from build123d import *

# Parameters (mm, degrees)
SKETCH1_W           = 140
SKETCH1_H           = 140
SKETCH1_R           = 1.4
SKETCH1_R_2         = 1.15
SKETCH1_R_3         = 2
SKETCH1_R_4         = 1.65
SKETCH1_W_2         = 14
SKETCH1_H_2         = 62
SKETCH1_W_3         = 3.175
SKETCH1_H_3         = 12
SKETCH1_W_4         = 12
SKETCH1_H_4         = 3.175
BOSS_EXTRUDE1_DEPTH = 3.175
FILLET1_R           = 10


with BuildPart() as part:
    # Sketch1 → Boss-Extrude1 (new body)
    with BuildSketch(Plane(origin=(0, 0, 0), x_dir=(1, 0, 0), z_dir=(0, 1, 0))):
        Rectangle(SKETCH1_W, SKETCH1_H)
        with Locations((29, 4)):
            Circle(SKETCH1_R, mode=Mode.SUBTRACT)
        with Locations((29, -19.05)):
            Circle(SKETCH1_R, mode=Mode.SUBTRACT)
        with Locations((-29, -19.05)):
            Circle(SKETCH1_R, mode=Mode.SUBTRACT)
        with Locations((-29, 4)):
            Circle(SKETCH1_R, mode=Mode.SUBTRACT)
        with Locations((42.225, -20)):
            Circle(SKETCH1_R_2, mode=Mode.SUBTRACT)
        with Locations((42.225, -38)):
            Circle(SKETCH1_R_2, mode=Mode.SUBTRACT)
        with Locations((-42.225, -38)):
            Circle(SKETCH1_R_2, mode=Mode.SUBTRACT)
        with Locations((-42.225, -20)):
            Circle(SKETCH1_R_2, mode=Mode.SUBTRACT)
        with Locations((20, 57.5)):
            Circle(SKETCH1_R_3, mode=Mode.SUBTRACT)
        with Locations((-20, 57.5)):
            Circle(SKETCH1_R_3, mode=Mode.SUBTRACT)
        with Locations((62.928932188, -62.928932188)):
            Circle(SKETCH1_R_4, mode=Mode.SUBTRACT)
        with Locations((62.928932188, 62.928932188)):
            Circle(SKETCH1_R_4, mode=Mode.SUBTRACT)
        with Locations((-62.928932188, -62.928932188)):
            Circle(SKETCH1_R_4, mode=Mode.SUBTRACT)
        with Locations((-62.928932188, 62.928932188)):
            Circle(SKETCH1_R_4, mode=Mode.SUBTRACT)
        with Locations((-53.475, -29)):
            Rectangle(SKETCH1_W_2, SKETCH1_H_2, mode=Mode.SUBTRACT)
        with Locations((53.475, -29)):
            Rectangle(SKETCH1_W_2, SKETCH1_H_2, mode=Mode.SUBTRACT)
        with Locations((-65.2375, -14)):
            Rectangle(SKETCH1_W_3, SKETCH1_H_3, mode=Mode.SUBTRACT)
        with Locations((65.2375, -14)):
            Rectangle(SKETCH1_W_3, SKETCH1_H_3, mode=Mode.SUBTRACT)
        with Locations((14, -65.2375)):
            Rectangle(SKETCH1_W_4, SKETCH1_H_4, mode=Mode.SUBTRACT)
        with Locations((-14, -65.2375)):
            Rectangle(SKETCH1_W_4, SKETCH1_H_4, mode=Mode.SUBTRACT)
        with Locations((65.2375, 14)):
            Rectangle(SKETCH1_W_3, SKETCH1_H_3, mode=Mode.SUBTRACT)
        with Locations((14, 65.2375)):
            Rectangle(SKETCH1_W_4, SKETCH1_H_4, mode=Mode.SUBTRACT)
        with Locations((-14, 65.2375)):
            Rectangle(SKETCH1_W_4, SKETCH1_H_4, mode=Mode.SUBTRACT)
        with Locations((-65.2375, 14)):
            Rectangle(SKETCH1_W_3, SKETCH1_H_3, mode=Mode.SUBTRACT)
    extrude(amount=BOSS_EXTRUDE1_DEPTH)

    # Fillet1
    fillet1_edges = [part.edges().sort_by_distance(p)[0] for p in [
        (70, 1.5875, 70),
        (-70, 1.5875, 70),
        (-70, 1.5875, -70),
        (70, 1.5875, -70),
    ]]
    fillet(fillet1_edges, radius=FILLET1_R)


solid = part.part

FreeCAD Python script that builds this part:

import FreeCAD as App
import Part
import Sketcher


def edges_at(feature, points):
    """Names of the edges that pass closest to the given points."""
    edges = feature.Shape.Edges
    near = lambda p: min(range(len(edges)), key=lambda i: edges[i].distToShape(Part.Vertex(*p))[0])
    return sorted({f"Edge{near(p) + 1}" for p in points})


def add_polygon(sketch, points):
    """Adds a closed chain of lines whose ends are joined by coincident constraints."""
    first, n = sketch.GeometryCount, len(points)
    for a, b in zip(points, points[1:] + points[:1]):
        sketch.addGeometry(Part.LineSegment(App.Vector(*a, 0), App.Vector(*b, 0)), False)
    for i in range(n):
        sketch.addConstraint(Sketcher.Constraint("Coincident", first + i, 2, first + (i + 1) % n, 1))

doc = App.newDocument("Part")
params = doc.addObject("Spreadsheet::Sheet", "Params")
for row, (alias, value) in enumerate([
    ("sketch1_diameter", "4 mm"),
    ("sketch1_diameter2", "3.3 mm"),
    ("sketch1_diameter3", "2.3 mm"),
    ("sketch1_diameter4", "2.8 mm"),
    ("sketch1_width", "140 mm"),
    ("pad1_length", "3.175 mm"),
    ("fillet_radius", "10 mm"),
], start=1):
    params.set(f"A{row}", alias)
    params.set(f"B{row}", "=" + value)
    params.setAlias(f"B{row}", alias)

body = doc.addObject("PartDesign::Body", "Body")

# Sketch on XZ plane
sketch1 = body.newObject("Sketcher::SketchObject", "Sketch")
sketch1.AttachmentSupport = (doc.getObject("XZ_Plane"), [""])
sketch1.MapMode = "FlatFace"
add_polygon(sketch1, [(-70, -70), (-70, 70), (70, 70), (70, -70)])  # lines 0-3
sketch1.addGeometry(Part.Circle(App.Vector(-62.9, 62.9, 0), App.Vector(0, 0, 1), 1.6), False)  # 4
sketch1.addGeometry(Part.Circle(App.Vector(-42.2, 38, 0), App.Vector(0, 0, 1), 1.1), False)  # 5
add_polygon(sketch1, [(-8, 66.8), (-20, 66.8), (-20, 63.6), (-8, 63.6)])  # lines 6-9
add_polygon(sketch1, [(-46.5, 60), (-60.5, 60), (-60.5, -2), (-46.5, -2)])  # lines 10-13
sketch1.addGeometry(Part.Circle(App.Vector(-42.2, 20, 0), App.Vector(0, 0, 1), 1.1), False)  # 14
add_polygon(sketch1, [(-63.6, 20), (-66.8, 20), (-66.8, 8), (-63.6, 8)])  # lines 15-18
sketch1.addGeometry(Part.Circle(App.Vector(-29, 19.1, 0), App.Vector(0, 0, 1), 1.4), False)  # 19
add_polygon(sketch1, [(20, 66.8), (8, 66.8), (8, 63.6), (20, 63.6)])  # lines 20-23
sketch1.addGeometry(Part.Circle(App.Vector(62.9, 62.9, 0), App.Vector(0, 0, 1), 1.6), False)  # 24
sketch1.addGeometry(Part.Circle(App.Vector(42.2, 38, 0), App.Vector(0, 0, 1), 1.1), False)  # 25
sketch1.addGeometry(Part.Circle(App.Vector(29, 19.1, 0), App.Vector(0, 0, 1), 1.4), False)  # 26
sketch1.addGeometry(Part.Circle(App.Vector(42.2, 20, 0), App.Vector(0, 0, 1), 1.1), False)  # 27
add_polygon(sketch1, [(60.5, 60), (46.5, 60), (46.5, -2), (60.5, -2)])  # lines 28-31
add_polygon(sketch1, [(66.8, 20), (63.6, 20), (63.6, 8), (66.8, 8)])  # lines 32-35
add_polygon(sketch1, [(-63.6, -8), (-66.8, -8), (-66.8, -20), (-63.6, -20)])  # lines 36-39
sketch1.addGeometry(Part.Circle(App.Vector(-29, -4, 0), App.Vector(0, 0, 1), 1.4), False)  # 40
sketch1.addGeometry(Part.Circle(App.Vector(-62.9, -62.9, 0), App.Vector(0, 0, 1), 1.6), False)  # 41
sketch1.addGeometry(Part.Circle(App.Vector(-20, -57.5, 0), App.Vector(0, 0, 1), 2), False)  # 42
add_polygon(sketch1, [(-8, -63.6), (-20, -63.6), (-20, -66.8), (-8, -66.8)])  # lines 43-46
sketch1.addGeometry(Part.Circle(App.Vector(29, -4, 0), App.Vector(0, 0, 1), 1.4), False)  # 47
add_polygon(sketch1, [(66.8, -8), (63.6, -8), (63.6, -20), (66.8, -20)])  # lines 48-51
add_polygon(sketch1, [(20, -63.6), (8, -63.6), (8, -66.8), (20, -66.8)])  # lines 52-55
sketch1.addGeometry(Part.Circle(App.Vector(20, -57.5, 0), App.Vector(0, 0, 1), 2), False)  # 56
sketch1.addGeometry(Part.Circle(App.Vector(62.9, -62.9, 0), App.Vector(0, 0, 1), 1.6), False)  # 57
sketch1.addConstraint(Sketcher.Constraint("Vertical", 0))
sketch1.addConstraint(Sketcher.Constraint("Horizontal", 1))
sketch1.addConstraint(Sketcher.Constraint("Vertical", 2))
sketch1.addConstraint(Sketcher.Constraint("Horizontal", 3))
sketch1.addConstraint(Sketcher.Constraint("Horizontal", 6))
sketch1.addConstraint(Sketcher.Constraint("Vertical", 7))
sketch1.addConstraint(Sketcher.Constraint("Horizontal", 8))
sketch1.addConstraint(Sketcher.Constraint("Vertical", 9))
sketch1.addConstraint(Sketcher.Constraint("Horizontal", 10))
sketch1.addConstraint(Sketcher.Constraint("Vertical", 11))
sketch1.addConstraint(Sketcher.Constraint("Horizontal", 12))
sketch1.addConstraint(Sketcher.Constraint("Vertical", 13))
sketch1.addConstraint(Sketcher.Constraint("Horizontal", 15))
sketch1.addConstraint(Sketcher.Constraint("Vertical", 16))
sketch1.addConstraint(Sketcher.Constraint("Horizontal", 17))
sketch1.addConstraint(Sketcher.Constraint("Vertical", 18))
sketch1.addConstraint(Sketcher.Constraint("Horizontal", 20))
sketch1.addConstraint(Sketcher.Constraint("Vertical", 21))
sketch1.addConstraint(Sketcher.Constraint("Horizontal", 22))
sketch1.addConstraint(Sketcher.Constraint("Vertical", 23))
sketch1.addConstraint(Sketcher.Constraint("Horizontal", 28))
sketch1.addConstraint(Sketcher.Constraint("Vertical", 29))
sketch1.addConstraint(Sketcher.Constraint("Horizontal", 30))
sketch1.addConstraint(Sketcher.Constraint("Vertical", 31))
sketch1.addConstraint(Sketcher.Constraint("Horizontal", 32))
sketch1.addConstraint(Sketcher.Constraint("Vertical", 33))
sketch1.addConstraint(Sketcher.Constraint("Horizontal", 34))
sketch1.addConstraint(Sketcher.Constraint("Vertical", 35))
sketch1.addConstraint(Sketcher.Constraint("Horizontal", 36))
sketch1.addConstraint(Sketcher.Constraint("Vertical", 37))
sketch1.addConstraint(Sketcher.Constraint("Horizontal", 38))
sketch1.addConstraint(Sketcher.Constraint("Vertical", 39))
sketch1.addConstraint(Sketcher.Constraint("Horizontal", 43))
sketch1.addConstraint(Sketcher.Constraint("Vertical", 44))
sketch1.addConstraint(Sketcher.Constraint("Horizontal", 45))
sketch1.addConstraint(Sketcher.Constraint("Vertical", 46))
sketch1.addConstraint(Sketcher.Constraint("Horizontal", 48))
sketch1.addConstraint(Sketcher.Constraint("Vertical", 49))
sketch1.addConstraint(Sketcher.Constraint("Horizontal", 50))
sketch1.addConstraint(Sketcher.Constraint("Vertical", 51))
sketch1.addConstraint(Sketcher.Constraint("Horizontal", 52))
sketch1.addConstraint(Sketcher.Constraint("Vertical", 53))
sketch1.addConstraint(Sketcher.Constraint("Horizontal", 54))
sketch1.addConstraint(Sketcher.Constraint("Vertical", 55))
sketch1.addConstraint(Sketcher.Constraint("Equal", 5, 14))
sketch1.addConstraint(Sketcher.Constraint("Equal", 4, 24))
sketch1.addConstraint(Sketcher.Constraint("Equal", 14, 25))
sketch1.addConstraint(Sketcher.Constraint("Equal", 19, 26))
sketch1.addConstraint(Sketcher.Constraint("Equal", 25, 27))
sketch1.addConstraint(Sketcher.Constraint("Equal", 26, 40))
sketch1.addConstraint(Sketcher.Constraint("Equal", 24, 41))
sketch1.addConstraint(Sketcher.Constraint("Equal", 40, 47))
sketch1.addConstraint(Sketcher.Constraint("Equal", 42, 56))
sketch1.addConstraint(Sketcher.Constraint("Equal", 41, 57))
sketch1.addConstraint(Sketcher.Constraint("Symmetric", 24, 3, 41, 3, -1, 1))
sketch1.addConstraint(Sketcher.Constraint("Symmetric", 4, 3, 57, 3, -1, 1))
sketch1.addConstraint(Sketcher.Constraint("Symmetric", 0, 2, 2, 2, -1, 1))
sketch1.addConstraint(Sketcher.Constraint("Symmetric", 34, 2, 36, 2, -1, 1))
sketch1.addConstraint(Sketcher.Constraint("Symmetric", 32, 2, 38, 2, -1, 1))
sketch1.addConstraint(Sketcher.Constraint("Symmetric", 22, 2, 43, 2, -1, 1))
sketch1.addConstraint(Sketcher.Constraint("Symmetric", 20, 2, 45, 2, -1, 1))
sketch1.addConstraint(Sketcher.Constraint("Symmetric", 17, 2, 48, 2, -1, 1))
sketch1.addConstraint(Sketcher.Constraint("Symmetric", 15, 2, 50, 2, -1, 1))
sketch1.addConstraint(Sketcher.Constraint("Symmetric", 8, 2, 52, 2, -1, 1))
sketch1.addConstraint(Sketcher.Constraint("Symmetric", 6, 2, 54, 2, -1, 1))
sketch1.addConstraint(Sketcher.Constraint("Symmetric", 4, 3, 24, 3, -2))
sketch1.addConstraint(Sketcher.Constraint("Symmetric", 5, 3, 25, 3, -2))
sketch1.addConstraint(Sketcher.Constraint("Symmetric", 19, 3, 26, 3, -2))
sketch1.addConstraint(Sketcher.Constraint("Symmetric", 14, 3, 27, 3, -2))
sketch1.addConstraint(Sketcher.Constraint("Symmetric", 40, 3, 47, 3, -2))
sketch1.addConstraint(Sketcher.Constraint("Symmetric", 42, 3, 56, 3, -2))
sketch1.addConstraint(Sketcher.Constraint("Symmetric", 9, 2, 20, 2, -2))
sketch1.addConstraint(Sketcher.Constraint("Symmetric", 7, 2, 22, 2, -2))
sketch1.addConstraint(Sketcher.Constraint("Symmetric", 13, 2, 28, 2, -2))
sketch1.addConstraint(Sketcher.Constraint("Symmetric", 11, 2, 30, 2, -2))
sketch1.addConstraint(Sketcher.Constraint("Symmetric", 18, 2, 32, 2, -2))
sketch1.addConstraint(Sketcher.Constraint("Symmetric", 16, 2, 34, 2, -2))
sketch1.addConstraint(Sketcher.Constraint("Horizontal", 27, 3, 15, 2))
sketch1.addConstraint(Sketcher.Constraint("Vertical", 5, 3, 14, 3))
sketch1.addConstraint(Sketcher.Constraint("Vertical", 19, 3, 40, 3))
sketch1.addConstraint(Sketcher.Constraint("Vertical", 42, 3, 6, 2))
sketch1.addConstraint(Sketcher.Constraint("Equal", 3, 0))
sketch1.addConstraint(Sketcher.Constraint("Equal", 50, 7))
sketch1.addConstraint(Sketcher.Constraint("Equal", 54, 16))
sketch1.addConstraint(Sketcher.Constraint("Diameter", 42, 4.0))
sketch1.addConstraint(Sketcher.Constraint("Diameter", 4, 3.3))
sketch1.addConstraint(Sketcher.Constraint("Diameter", 5, 2.3))
sketch1.addConstraint(Sketcher.Constraint("Diameter", 19, 2.8))
sketch1.addConstraint(Sketcher.Constraint("DistanceX", 1, 1, 1, 2, 140.0))
sketch1.addConstraint(Sketcher.Constraint("DistanceX", 6, 2, 6, 1, 12.0))
sketch1.addConstraint(Sketcher.Constraint("DistanceX", 10, 2, 10, 1, 14.0))
sketch1.addConstraint(Sketcher.Constraint("DistanceY", 11, 2, 11, 1, 62.0))
sketch1.addConstraint(Sketcher.Constraint("DistanceY", -1, 1, 5, 3, 38.0))
sketch1.addConstraint(Sketcher.Constraint("DistanceY", -1, 1, 14, 3, 20.0))
sketch1.addConstraint(Sketcher.Constraint("DistanceX", 19, 3, -1, 1, 29.0))
sketch1.addConstraint(Sketcher.Constraint("DistanceY", 40, 3, -1, 1, 4.0))
sketch1.addConstraint(Sketcher.Constraint("DistanceX", 42, 3, -1, 1, 20.0))
sketch1.addConstraint(Sketcher.Constraint("DistanceY", -1, 1, 10, 2, 60.0))
sketch1.addConstraint(Sketcher.Constraint("DistanceY", 42, 3, -1, 1, 57.5))
sketch1.addConstraint(Sketcher.Constraint("DistanceY", 19, 3, 7, 2, 44.6))
sketch1.addConstraint(Sketcher.Constraint("DistanceX", 15, 2, 14, 3, 24.6))
sketch1.addConstraint(Sketcher.Constraint("DistanceX", 15, 2, 15, 1, 3.175))
sketch1.addConstraint(Sketcher.Constraint("DistanceY", -1, 1, 19, 3, 19.05))
sketch1.addConstraint(Sketcher.Constraint("DistanceX", 17, 2, -1, 1, 63.65))
sketch1.addConstraint(Sketcher.Constraint("DistanceX", 10, 2, 5, 3, 18.25))
sketch1.addConstraint(Sketcher.Constraint("DistanceX", 4, 3, -1, 1, 62.928932))
sketch1.addConstraint(Sketcher.Constraint("DistanceY", -1, 1, 4, 3, 62.928932))
sketch1.setExpression("Constraints[128]", "Params.sketch1_diameter")
sketch1.setExpression("Constraints[129]", "Params.sketch1_diameter2")
sketch1.setExpression("Constraints[130]", "Params.sketch1_diameter3")
sketch1.setExpression("Constraints[131]", "Params.sketch1_diameter4")
sketch1.setExpression("Constraints[132]", "Params.sketch1_width")
pad1 = body.newObject("PartDesign::Pad", "Pad")
pad1.Profile = sketch1
pad1.setExpression("Length", "Params.pad1_length")
pad1.Reversed = True
doc.recompute()

fillet = body.newObject("PartDesign::Fillet", "Fillet")
fillet.Base = (pad1, edges_at(pad1, [
    (70, 1.587, 70),
    (-70, 1.587, 70),
    (-70, 1.587, -70),
    (70, 1.587, -70),
]))
fillet.setExpression("Radius", "Params.fillet_radius")

doc.recompute()
